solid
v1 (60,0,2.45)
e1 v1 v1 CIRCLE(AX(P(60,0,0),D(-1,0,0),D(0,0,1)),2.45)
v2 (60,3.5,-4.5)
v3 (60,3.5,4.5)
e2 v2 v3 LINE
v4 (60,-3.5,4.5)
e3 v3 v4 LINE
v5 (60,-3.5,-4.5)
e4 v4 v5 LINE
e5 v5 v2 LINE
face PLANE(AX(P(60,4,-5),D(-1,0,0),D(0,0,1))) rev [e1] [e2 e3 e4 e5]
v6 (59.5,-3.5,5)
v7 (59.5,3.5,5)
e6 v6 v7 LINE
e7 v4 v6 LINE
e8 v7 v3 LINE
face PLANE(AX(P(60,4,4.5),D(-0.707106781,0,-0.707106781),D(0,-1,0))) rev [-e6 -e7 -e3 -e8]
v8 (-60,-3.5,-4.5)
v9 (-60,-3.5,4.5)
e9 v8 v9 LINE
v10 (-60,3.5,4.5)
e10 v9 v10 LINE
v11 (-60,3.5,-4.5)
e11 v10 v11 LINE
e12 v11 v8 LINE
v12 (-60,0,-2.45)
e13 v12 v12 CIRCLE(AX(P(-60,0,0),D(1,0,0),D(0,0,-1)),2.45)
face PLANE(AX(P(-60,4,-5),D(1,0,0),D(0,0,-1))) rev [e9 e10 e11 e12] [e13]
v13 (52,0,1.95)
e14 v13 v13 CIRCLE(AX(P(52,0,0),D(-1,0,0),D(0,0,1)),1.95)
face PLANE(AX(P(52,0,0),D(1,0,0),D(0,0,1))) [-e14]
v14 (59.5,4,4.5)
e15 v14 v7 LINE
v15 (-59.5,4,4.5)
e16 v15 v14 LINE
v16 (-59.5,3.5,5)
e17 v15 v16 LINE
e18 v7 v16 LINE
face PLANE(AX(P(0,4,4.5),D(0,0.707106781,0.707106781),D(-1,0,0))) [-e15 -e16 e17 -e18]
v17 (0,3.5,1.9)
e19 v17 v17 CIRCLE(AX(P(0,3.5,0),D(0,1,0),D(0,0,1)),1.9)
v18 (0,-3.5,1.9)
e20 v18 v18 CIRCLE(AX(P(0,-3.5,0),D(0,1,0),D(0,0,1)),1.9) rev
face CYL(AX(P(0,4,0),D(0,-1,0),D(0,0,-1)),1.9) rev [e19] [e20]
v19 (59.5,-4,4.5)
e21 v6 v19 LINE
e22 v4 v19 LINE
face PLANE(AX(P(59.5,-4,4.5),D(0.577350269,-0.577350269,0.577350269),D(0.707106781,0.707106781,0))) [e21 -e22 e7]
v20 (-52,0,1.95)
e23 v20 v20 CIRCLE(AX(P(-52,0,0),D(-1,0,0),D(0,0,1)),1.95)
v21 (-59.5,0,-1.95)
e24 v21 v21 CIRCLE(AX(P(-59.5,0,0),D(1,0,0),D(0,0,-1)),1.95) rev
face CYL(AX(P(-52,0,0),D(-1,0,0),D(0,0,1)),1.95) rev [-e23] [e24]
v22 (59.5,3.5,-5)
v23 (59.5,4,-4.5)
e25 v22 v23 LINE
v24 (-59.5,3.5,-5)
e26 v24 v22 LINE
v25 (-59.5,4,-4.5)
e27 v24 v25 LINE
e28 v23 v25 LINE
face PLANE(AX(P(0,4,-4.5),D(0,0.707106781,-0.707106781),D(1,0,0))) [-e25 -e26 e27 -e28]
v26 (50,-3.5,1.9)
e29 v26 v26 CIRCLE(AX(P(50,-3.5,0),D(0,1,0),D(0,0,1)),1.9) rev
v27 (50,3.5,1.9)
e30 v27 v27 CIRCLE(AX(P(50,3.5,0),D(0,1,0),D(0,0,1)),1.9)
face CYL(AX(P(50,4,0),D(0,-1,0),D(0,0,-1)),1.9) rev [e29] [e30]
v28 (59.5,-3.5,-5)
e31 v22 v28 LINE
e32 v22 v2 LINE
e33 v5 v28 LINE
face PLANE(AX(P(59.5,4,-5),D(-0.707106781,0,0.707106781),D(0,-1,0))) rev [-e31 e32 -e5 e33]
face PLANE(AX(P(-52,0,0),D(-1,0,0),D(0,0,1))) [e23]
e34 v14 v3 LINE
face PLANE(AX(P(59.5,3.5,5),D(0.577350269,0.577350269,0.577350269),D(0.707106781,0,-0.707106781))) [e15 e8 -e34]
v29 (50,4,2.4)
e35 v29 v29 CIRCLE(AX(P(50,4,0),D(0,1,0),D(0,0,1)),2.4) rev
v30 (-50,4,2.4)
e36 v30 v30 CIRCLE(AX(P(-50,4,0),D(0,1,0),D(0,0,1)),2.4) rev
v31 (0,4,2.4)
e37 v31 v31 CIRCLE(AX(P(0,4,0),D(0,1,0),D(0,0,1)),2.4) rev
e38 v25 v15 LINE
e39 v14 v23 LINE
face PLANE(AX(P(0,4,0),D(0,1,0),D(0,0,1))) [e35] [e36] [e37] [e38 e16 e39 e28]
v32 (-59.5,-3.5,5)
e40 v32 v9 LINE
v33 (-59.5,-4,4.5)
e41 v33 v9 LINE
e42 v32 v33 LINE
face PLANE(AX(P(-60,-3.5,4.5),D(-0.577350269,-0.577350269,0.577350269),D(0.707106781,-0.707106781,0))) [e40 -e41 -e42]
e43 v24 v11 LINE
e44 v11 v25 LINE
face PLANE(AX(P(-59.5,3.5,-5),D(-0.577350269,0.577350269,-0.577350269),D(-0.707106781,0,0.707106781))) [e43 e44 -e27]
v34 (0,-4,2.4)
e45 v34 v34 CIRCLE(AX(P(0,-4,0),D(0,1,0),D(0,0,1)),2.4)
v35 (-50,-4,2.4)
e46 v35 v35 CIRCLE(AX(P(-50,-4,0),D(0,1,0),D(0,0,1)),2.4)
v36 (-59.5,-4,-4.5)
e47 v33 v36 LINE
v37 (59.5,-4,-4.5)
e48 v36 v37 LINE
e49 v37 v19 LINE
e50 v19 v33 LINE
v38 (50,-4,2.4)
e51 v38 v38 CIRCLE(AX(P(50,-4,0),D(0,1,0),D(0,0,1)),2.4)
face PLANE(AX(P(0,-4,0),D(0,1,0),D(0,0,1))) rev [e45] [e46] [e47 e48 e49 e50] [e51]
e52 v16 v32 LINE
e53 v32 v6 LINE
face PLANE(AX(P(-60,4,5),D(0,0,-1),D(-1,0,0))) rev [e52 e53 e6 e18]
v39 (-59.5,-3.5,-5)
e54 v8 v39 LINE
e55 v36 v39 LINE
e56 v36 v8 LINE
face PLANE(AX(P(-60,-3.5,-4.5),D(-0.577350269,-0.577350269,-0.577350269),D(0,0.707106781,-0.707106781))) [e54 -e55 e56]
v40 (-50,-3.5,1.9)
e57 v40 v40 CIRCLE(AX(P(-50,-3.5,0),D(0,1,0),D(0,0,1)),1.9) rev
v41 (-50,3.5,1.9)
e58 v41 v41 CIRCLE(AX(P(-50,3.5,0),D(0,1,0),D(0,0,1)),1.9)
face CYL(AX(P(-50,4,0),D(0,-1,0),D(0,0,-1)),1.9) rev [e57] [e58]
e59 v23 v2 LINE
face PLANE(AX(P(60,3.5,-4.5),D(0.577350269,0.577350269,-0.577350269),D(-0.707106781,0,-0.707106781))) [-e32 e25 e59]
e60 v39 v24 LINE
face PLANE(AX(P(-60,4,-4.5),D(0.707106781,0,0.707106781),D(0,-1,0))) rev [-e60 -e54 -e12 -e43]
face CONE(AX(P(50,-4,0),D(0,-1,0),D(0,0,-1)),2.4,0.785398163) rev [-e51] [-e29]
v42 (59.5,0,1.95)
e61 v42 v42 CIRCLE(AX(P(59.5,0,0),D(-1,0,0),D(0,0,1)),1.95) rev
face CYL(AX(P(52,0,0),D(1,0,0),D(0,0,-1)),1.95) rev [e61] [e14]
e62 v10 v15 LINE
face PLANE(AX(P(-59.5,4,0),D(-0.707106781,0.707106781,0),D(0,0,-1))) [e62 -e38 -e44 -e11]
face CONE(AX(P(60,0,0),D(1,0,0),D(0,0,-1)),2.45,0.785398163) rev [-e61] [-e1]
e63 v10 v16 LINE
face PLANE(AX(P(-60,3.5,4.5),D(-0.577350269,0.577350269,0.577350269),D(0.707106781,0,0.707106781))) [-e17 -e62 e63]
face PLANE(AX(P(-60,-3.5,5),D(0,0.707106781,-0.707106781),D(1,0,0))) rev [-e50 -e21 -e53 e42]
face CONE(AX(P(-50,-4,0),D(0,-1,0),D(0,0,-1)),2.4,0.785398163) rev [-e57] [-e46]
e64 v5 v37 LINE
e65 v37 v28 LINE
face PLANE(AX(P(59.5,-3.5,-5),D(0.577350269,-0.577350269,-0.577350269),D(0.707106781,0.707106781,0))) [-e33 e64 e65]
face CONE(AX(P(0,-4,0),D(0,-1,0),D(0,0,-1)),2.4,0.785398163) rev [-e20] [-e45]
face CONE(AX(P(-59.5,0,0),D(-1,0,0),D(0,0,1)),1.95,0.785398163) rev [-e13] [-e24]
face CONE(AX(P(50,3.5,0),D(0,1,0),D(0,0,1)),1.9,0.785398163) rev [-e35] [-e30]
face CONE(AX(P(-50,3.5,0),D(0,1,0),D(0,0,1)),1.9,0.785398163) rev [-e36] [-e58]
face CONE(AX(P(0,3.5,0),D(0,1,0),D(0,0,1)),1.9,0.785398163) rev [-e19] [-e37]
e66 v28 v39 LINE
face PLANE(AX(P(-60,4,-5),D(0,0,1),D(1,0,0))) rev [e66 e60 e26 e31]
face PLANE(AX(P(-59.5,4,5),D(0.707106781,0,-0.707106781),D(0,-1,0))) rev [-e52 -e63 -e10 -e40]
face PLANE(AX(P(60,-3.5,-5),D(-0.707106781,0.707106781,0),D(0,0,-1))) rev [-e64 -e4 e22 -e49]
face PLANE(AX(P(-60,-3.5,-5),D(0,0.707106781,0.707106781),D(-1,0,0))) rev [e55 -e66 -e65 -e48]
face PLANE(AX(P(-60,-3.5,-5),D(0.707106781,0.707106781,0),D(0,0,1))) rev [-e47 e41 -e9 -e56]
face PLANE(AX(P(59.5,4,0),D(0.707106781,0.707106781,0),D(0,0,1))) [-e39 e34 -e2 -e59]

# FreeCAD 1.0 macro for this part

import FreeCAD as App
import Part
import Sketcher
Q = App.Units.Quantity


def edges_at(feature, points):
    """Names of the edges that pass closest to the given points."""
    edges = feature.Shape.Edges
    near = lambda p: min(range(len(edges)), key=lambda i: edges[i].distToShape(Part.Vertex(*p))[0])
    return sorted({f"Edge{near(p) + 1}" for p in points})


def add_polygon(sketch, points):
    """Adds a closed chain of lines whose ends are joined by coincident constraints."""
    first, n = sketch.GeometryCount, len(points)
    for a, b in zip(points, points[1:] + points[:1]):
        sketch.addGeometry(Part.LineSegment(App.Vector(*a, 0), App.Vector(*b, 0)), False)
    for i in range(n):
        sketch.addConstraint(Sketcher.Constraint("Coincident", first + i, 2, first + (i + 1) % n, 1))

doc = App.newDocument("Part")
body = doc.addObject("PartDesign::Body", "Body")

# Sketch on XZ plane
sketch1 = body.newObject("Sketcher::SketchObject", "Sketch")
sketch1.AttachmentSupport = (doc.getObject("XZ_Plane"), [""])
sketch1.MapMode = "FlatFace"
add_polygon(sketch1, [(-60, -5), (-60, 5), (60, 5), (60, -5)])  # lines 0-3
sketch1.addGeometry(Part.Circle(App.Vector(-50, 0, 0), App.Vector(0, 0, 1), 1.9), False)  # 4
sketch1.addGeometry(Part.Circle(App.Vector(0, 0, 0), App.Vector(0, 0, 1), 1.9), False)  # 5
sketch1.addGeometry(Part.Circle(App.Vector(50, 0, 0), App.Vector(0, 0, 1), 1.9), False)  # 6
sketch1.addConstraint([
    Sketcher.Constraint("Vertical", 0),
    Sketcher.Constraint("Horizontal", 1),
    Sketcher.Constraint("Vertical", 2),
    Sketcher.Constraint("Horizontal", 3),
    Sketcher.Constraint("Coincident", 5, 3, -1, 1),
    Sketcher.Constraint("Equal", 4, 5),
    Sketcher.Constraint("Equal", 5, 6),
    Sketcher.Constraint("Symmetric", 4, 3, 6, 3, -1, 1),
    Sketcher.Constraint("Symmetric", 0, 2, 2, 2, -1, 1),
    Sketcher.Constraint("PointOnObject", 4, 3, -1),
    Sketcher.Constraint("Diameter", 4, Q("3.8 mm")),
    Sketcher.Constraint("DistanceX", 1, 1, 1, 2, Q("120 mm")),
    Sketcher.Constraint("DistanceY", 0, 1, 0, 2, Q("10 mm")),
    Sketcher.Constraint("DistanceX", 4, 3, -1, 1, Q("50 mm")),
])
pad1 = body.newObject("PartDesign::Pad", "Pad")
pad1.Profile = sketch1
pad1.Length = 8
pad1.Midplane = True

# Sketch on YZ plane
sketch2 = body.newObject("Sketcher::SketchObject", "Sketch001")
sketch2.AttachmentSupport = (doc.getObject("YZ_Plane"), [""])
sketch2.MapMode = "FlatFace"
sketch2.AttachmentOffset = App.Placement(App.Vector(0, 0, -60), App.Rotation())
sketch2.addGeometry(Part.Circle(App.Vector(0, 0, 0), App.Vector(0, 0, 1), 1.95), False)
sketch2.addConstraint([
    Sketcher.Constraint("Coincident", 0, 3, -1, 1),
    Sketcher.Constraint("Diameter", 0, Q("3.9 mm")),
])
pocket1 = body.newObject("PartDesign::Pocket", "Pocket")
pocket1.Profile = sketch2
pocket1.Length = 8
pocket1.Reversed = True
doc.recompute()

mirrored = body.newObject("PartDesign::Mirrored", "Mirrored")
mirrored.Originals = [pocket1]
mirrored.MirrorPlane = (doc.getObject("YZ_Plane"), [""])
body.Tip = mirrored
doc.recompute()

chamfer = body.newObject("PartDesign::Chamfer", "Chamfer")
chamfer.Base = (mirrored, edges_at(mirrored, [
    (-50, -4, -1.9),
    (-50, 4, -1.9),
    (-60, 4, 0),
    (50, -4, 1.9),
    (50, 4, 1.9),
    (0, 4, 5),
    (0, -4, -1.9),
    (0, 4, -1.9),
    (-60, 0, -1.95),
    (60, 0, -1.95),
    (60, 4, 0),
    (0, -4, 5),
    (-60, -4, 0),
    (0, -4, -5),
    (60, -4, 0),
    (60, 0, 5),
    (-60, 0, 5),
    (-60, 0, -5),
    (60, 0, -5),
    (0, 4, -5),
]))
chamfer.Size = 0.5

doc.recompute()
